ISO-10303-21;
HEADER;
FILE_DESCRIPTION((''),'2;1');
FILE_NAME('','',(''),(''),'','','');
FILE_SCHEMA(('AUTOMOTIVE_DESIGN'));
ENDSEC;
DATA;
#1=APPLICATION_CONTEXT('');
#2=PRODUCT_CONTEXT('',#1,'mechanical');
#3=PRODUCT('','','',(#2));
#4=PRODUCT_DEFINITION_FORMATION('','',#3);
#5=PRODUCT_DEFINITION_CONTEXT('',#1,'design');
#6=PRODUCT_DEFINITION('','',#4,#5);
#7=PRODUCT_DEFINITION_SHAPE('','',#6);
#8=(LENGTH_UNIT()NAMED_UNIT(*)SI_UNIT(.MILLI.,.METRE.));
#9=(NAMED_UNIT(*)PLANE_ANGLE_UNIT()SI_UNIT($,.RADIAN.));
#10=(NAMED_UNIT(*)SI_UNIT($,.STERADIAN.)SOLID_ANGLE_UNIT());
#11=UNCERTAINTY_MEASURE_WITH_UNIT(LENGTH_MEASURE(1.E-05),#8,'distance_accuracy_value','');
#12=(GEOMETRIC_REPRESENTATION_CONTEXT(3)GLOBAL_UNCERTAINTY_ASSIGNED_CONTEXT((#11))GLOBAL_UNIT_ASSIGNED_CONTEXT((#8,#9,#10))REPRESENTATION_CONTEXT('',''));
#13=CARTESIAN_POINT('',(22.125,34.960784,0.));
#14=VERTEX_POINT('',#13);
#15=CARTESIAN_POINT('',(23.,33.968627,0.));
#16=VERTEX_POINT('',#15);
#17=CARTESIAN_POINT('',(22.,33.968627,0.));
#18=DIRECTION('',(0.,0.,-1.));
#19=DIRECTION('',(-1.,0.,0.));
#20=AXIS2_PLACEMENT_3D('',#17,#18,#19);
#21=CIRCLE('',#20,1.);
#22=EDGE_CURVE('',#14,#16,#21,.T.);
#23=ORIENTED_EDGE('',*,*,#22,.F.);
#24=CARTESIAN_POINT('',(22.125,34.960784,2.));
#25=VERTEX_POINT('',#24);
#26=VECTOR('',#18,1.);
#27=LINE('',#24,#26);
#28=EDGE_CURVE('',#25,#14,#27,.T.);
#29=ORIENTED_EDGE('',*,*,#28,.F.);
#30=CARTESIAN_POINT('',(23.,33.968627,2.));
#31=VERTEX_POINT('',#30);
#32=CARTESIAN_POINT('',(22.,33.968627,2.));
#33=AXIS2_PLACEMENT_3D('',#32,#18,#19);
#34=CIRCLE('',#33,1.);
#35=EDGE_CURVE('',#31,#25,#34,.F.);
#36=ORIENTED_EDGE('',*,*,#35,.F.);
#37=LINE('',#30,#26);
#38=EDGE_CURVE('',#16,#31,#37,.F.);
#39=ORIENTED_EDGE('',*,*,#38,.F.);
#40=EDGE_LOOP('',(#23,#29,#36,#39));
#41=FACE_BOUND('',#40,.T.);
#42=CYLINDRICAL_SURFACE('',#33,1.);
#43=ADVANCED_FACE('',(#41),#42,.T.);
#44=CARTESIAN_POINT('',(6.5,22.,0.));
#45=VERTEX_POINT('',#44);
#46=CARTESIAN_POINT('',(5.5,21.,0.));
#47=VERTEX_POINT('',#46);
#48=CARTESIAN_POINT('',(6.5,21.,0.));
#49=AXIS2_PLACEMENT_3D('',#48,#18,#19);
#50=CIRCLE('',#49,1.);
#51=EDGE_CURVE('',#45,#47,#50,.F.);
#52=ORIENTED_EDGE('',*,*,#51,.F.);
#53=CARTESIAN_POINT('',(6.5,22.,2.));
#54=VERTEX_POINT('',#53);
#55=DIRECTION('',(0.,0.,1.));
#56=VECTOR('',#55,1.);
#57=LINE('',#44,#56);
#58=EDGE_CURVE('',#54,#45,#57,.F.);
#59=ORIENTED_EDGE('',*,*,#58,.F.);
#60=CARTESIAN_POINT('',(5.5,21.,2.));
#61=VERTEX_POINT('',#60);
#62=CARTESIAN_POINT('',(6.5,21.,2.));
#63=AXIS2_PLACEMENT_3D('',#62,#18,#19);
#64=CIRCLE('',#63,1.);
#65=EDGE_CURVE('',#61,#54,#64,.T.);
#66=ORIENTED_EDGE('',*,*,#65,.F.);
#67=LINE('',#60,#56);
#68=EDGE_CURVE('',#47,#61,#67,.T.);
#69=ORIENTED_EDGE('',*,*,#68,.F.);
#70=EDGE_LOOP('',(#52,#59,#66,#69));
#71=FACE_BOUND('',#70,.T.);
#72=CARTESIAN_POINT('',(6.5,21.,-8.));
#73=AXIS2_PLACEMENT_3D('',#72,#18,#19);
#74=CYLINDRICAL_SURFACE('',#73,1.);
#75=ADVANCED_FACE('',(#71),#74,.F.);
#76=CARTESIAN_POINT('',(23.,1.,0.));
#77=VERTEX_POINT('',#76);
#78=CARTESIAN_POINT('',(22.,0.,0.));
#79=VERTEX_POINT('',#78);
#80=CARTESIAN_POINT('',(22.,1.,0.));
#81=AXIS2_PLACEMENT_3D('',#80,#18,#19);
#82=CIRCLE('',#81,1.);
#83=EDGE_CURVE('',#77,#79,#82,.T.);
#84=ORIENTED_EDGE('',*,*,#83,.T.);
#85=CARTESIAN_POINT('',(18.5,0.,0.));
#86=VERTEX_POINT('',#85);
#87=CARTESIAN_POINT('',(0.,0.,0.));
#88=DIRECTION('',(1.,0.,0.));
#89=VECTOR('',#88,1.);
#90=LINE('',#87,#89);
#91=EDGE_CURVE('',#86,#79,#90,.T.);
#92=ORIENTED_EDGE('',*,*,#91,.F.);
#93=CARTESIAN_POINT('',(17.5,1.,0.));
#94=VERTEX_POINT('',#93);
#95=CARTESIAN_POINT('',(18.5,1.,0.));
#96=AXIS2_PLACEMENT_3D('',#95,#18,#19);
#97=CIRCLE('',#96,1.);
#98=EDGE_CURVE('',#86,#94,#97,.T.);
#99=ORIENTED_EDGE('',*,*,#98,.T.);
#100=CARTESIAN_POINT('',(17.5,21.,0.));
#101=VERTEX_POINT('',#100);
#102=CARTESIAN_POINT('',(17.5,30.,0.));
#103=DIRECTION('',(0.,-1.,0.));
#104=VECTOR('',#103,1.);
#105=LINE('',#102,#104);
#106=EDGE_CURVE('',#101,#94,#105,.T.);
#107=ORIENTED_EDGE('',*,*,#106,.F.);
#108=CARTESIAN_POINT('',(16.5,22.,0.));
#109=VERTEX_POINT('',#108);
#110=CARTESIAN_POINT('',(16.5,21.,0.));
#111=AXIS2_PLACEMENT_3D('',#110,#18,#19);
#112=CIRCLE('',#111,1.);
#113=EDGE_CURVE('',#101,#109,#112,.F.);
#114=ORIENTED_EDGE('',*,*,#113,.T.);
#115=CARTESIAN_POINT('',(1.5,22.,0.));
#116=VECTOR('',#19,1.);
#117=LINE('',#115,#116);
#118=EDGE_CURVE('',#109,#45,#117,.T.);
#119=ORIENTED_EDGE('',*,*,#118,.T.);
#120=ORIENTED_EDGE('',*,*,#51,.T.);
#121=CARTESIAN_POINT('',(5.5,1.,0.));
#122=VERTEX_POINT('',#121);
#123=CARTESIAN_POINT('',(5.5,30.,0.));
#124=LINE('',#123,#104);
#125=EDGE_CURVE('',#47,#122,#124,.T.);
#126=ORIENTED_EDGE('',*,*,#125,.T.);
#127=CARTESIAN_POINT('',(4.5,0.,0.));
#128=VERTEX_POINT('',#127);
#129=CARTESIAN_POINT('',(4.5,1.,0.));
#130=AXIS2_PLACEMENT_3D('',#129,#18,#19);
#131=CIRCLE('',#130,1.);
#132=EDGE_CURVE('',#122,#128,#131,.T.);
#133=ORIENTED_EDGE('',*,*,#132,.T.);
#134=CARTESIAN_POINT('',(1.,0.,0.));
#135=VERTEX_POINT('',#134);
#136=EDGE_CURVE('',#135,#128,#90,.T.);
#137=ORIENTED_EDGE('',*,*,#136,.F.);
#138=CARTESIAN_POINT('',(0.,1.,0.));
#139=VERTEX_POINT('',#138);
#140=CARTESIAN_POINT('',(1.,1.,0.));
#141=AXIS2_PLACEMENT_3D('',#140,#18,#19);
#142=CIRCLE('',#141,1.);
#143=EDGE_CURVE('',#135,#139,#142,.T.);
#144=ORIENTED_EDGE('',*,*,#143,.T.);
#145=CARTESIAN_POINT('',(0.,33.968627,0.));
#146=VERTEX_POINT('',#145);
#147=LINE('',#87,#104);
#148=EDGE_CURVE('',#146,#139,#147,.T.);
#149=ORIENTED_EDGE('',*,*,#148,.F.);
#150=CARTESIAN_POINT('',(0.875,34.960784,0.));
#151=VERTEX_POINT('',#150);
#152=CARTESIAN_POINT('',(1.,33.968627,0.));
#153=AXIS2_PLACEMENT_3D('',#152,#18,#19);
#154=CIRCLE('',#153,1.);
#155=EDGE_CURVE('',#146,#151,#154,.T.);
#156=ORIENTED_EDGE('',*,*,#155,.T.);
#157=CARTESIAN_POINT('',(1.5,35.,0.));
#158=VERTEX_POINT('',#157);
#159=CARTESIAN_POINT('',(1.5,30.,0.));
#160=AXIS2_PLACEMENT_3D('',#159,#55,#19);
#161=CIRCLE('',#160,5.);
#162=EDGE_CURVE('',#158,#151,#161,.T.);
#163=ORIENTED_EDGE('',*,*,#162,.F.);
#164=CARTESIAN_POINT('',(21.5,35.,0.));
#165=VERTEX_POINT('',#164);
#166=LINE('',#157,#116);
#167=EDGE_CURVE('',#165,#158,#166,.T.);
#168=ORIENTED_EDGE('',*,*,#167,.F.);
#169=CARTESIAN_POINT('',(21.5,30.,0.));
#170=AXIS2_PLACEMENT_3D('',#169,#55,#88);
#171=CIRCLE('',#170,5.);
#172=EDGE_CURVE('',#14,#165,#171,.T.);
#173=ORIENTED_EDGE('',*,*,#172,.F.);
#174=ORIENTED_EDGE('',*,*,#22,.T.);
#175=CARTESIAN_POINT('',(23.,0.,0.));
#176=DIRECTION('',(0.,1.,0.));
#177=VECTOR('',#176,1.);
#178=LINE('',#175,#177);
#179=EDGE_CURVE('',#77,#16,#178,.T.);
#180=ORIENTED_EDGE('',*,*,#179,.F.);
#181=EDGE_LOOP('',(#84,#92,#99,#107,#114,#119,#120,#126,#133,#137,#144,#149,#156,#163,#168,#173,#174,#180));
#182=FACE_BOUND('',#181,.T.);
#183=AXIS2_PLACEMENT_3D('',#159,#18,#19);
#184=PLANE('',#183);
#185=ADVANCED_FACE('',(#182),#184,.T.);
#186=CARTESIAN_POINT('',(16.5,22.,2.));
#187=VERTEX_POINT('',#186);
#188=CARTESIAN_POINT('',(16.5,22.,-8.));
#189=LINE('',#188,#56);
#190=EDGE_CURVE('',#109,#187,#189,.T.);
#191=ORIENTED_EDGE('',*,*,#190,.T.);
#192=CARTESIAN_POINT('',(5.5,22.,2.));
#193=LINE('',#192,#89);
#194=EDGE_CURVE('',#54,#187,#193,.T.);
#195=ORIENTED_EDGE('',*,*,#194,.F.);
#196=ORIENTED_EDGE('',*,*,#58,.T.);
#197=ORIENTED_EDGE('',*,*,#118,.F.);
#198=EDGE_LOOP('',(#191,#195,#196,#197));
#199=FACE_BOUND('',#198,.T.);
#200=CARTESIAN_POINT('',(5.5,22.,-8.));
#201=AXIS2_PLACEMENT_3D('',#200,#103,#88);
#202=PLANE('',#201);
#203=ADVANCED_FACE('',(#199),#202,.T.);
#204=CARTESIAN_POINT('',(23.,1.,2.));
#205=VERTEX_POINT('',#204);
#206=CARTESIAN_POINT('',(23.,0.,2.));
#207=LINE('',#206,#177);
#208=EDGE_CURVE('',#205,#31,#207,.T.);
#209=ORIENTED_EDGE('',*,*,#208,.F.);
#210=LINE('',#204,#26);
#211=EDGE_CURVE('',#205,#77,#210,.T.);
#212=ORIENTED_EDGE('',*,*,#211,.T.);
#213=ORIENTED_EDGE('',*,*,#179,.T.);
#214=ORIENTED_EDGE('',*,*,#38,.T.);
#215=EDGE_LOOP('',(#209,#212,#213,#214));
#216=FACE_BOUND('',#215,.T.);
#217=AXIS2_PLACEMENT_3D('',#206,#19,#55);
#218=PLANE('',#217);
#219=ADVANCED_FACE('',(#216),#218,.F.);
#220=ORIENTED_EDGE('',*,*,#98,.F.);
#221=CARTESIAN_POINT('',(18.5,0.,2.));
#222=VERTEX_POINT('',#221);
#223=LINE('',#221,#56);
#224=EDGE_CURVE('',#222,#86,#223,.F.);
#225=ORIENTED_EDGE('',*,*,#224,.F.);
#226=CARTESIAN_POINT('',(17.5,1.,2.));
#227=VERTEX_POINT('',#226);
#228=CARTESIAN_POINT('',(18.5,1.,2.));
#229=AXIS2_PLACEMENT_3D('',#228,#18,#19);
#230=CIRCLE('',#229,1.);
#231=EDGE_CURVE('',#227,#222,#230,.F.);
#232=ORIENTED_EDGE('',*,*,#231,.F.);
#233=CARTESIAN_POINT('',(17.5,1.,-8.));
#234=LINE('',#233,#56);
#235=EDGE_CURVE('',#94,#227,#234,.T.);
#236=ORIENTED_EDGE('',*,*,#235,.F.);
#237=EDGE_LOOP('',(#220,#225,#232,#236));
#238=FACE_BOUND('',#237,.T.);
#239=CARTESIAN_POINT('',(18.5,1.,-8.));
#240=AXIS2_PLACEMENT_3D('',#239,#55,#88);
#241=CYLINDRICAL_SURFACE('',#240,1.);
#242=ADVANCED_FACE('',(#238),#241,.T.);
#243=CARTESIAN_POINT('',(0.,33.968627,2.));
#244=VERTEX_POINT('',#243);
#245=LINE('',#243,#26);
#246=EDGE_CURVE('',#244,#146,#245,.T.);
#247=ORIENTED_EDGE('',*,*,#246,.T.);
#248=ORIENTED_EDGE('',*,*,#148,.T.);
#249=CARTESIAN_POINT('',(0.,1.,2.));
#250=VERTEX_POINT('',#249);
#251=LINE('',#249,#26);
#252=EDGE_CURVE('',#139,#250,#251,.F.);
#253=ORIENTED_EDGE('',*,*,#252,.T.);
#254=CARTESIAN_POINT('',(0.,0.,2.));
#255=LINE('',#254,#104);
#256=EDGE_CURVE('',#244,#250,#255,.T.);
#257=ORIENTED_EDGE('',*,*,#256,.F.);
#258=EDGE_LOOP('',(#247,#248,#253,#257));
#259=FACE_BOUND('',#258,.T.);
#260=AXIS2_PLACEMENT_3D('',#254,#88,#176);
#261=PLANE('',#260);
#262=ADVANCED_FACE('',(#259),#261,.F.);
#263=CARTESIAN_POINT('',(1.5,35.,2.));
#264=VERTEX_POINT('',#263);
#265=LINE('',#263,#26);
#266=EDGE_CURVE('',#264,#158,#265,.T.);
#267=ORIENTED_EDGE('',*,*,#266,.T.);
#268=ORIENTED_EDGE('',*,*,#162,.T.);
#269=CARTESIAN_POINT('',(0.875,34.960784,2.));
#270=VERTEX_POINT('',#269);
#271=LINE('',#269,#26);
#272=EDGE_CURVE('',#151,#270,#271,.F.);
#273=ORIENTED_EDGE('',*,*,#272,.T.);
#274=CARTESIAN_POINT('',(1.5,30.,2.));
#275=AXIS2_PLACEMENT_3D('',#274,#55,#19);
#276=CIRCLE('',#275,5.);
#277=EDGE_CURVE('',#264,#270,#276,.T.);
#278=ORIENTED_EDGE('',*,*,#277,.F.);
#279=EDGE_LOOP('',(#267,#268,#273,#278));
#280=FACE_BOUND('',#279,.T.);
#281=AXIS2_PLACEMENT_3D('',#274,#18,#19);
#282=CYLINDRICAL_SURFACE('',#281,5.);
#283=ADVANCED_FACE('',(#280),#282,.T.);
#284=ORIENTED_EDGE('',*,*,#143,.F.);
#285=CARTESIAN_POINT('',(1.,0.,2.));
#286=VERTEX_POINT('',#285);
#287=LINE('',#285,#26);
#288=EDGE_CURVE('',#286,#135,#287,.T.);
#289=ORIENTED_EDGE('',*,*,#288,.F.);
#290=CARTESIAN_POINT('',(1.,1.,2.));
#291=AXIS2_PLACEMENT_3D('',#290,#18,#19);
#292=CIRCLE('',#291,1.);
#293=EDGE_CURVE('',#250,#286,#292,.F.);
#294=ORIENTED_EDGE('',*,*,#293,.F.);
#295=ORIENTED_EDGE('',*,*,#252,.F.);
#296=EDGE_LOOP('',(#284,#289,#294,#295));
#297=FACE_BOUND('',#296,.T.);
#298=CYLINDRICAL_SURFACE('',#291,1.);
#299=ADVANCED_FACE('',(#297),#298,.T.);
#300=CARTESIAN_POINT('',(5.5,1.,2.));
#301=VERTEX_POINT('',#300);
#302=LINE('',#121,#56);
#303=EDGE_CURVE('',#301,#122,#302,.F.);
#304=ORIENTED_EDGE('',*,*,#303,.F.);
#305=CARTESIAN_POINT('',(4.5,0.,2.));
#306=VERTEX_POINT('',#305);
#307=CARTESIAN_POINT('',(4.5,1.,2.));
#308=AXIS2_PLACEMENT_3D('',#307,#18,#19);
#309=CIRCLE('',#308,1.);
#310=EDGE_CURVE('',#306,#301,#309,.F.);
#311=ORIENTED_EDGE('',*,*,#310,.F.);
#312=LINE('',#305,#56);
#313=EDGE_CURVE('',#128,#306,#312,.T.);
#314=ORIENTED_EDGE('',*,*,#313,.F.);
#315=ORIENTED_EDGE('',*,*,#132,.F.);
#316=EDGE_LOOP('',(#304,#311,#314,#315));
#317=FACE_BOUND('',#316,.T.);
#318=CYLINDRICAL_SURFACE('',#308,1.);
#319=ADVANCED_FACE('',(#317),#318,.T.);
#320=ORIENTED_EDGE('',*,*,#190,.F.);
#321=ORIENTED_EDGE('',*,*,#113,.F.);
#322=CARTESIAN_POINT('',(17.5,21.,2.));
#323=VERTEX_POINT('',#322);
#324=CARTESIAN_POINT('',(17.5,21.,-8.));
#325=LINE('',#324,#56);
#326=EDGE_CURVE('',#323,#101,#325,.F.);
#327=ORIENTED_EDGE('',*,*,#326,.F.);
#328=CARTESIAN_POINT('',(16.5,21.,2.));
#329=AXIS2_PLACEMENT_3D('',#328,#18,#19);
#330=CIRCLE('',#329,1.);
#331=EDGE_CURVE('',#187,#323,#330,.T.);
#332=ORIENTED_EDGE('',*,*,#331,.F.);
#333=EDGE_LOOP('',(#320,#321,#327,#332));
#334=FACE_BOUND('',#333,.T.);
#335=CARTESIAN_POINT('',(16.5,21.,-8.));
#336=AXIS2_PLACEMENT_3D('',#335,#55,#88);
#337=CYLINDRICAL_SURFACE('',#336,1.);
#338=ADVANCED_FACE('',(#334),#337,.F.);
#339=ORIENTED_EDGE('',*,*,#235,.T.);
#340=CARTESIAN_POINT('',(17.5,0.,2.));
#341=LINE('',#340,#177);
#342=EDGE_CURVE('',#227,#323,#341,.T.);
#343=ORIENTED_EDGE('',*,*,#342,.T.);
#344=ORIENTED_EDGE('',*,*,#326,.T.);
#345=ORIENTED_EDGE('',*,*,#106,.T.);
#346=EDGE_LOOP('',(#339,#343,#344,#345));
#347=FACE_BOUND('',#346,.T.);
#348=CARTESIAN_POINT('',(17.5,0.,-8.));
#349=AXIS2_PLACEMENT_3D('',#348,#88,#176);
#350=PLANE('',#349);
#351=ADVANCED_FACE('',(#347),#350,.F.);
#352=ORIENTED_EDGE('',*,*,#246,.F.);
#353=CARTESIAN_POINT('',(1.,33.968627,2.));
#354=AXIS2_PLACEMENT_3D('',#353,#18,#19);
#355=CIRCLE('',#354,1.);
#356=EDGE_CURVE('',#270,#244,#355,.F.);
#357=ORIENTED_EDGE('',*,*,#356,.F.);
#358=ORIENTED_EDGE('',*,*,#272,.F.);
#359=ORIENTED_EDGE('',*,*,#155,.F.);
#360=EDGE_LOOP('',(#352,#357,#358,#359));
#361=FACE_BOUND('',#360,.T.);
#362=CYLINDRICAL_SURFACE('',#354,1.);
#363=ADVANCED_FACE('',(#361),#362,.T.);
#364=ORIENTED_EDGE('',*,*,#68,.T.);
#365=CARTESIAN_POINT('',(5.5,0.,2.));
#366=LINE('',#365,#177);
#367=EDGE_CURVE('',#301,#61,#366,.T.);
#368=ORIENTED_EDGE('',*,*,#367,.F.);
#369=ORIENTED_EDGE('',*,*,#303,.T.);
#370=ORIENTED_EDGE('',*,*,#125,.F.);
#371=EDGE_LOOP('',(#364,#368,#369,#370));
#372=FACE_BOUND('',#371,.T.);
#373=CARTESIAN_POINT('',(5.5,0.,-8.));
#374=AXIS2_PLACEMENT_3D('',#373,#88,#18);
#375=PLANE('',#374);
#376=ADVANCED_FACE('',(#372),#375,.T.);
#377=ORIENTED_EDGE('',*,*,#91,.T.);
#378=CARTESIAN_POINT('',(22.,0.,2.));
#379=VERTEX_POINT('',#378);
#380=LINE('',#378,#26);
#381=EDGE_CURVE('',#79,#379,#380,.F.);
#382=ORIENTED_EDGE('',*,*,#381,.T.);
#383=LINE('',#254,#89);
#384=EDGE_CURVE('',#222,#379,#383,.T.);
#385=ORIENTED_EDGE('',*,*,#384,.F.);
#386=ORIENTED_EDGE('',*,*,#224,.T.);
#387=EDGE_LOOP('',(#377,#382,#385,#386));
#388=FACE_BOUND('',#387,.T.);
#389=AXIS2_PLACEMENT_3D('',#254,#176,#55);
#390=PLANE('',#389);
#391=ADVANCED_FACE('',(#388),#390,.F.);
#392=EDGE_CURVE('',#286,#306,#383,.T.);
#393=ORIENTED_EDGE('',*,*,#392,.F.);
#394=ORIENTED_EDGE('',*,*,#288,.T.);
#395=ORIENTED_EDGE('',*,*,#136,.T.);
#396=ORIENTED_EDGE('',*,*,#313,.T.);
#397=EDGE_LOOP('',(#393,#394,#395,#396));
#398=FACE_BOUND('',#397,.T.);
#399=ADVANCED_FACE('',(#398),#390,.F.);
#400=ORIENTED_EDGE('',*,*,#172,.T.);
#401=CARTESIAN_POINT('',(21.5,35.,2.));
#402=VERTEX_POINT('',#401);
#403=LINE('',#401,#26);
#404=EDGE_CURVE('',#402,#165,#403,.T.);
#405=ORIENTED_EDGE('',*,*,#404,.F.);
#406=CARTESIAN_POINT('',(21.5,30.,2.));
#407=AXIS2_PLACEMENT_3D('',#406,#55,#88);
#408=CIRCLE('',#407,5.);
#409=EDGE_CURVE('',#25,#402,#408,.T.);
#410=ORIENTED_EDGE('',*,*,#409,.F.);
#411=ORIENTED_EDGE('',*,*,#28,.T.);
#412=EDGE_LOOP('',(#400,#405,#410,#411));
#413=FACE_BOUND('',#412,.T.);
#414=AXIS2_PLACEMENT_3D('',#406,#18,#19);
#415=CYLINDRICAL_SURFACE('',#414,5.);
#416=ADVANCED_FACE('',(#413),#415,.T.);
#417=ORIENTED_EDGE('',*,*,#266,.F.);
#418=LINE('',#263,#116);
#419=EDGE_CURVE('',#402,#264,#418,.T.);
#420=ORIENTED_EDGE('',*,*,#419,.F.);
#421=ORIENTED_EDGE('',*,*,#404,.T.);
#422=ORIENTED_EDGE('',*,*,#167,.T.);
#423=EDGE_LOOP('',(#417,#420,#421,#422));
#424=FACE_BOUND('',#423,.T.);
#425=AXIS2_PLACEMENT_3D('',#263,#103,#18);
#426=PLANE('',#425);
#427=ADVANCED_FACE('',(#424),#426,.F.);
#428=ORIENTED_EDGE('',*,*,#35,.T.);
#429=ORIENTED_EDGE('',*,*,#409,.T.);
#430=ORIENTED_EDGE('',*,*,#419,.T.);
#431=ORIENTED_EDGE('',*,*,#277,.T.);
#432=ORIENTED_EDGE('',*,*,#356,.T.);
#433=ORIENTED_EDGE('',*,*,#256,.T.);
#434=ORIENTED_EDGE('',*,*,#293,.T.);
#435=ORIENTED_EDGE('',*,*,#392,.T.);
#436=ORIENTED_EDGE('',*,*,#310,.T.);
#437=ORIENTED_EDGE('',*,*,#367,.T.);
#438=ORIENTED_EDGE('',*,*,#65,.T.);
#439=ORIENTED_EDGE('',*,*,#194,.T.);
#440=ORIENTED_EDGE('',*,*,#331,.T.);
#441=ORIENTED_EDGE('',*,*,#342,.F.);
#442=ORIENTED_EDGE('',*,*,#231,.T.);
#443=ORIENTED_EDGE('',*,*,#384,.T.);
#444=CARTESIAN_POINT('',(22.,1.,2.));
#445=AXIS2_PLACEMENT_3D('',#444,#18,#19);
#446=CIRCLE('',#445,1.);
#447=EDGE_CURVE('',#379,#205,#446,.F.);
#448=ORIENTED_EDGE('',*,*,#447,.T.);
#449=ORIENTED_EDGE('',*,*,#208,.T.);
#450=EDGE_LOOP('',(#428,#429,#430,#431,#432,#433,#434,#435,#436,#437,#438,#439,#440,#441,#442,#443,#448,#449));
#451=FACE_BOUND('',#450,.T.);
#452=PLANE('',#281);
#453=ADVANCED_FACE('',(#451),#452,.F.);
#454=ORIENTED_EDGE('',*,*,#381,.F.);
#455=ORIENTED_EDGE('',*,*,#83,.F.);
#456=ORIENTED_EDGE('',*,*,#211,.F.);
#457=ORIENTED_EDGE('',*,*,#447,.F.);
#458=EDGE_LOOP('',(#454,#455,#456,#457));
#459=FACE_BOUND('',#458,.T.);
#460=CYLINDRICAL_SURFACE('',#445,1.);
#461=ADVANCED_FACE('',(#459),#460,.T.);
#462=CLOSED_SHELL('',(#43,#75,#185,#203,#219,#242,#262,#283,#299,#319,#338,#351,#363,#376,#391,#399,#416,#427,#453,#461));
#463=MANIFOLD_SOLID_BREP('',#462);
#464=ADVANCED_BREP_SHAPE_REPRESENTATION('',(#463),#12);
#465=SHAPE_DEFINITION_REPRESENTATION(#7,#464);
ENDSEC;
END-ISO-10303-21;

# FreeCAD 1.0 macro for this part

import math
import FreeCAD as App
import Part
import Sketcher

V = App.Vector
Q = App.Units.Quantity


def edges_at(feature, points):
    """Names of the edges that pass closest to the given points."""
    edges = feature.Shape.Edges
    near = lambda p: min(range(len(edges)), key=lambda i: edges[i].distToShape(Part.Vertex(*p))[0])
    return sorted({f"Edge{near(p) + 1}" for p in points})

doc = App.newDocument("Part")
body = doc.addObject("PartDesign::Body", "Body")

# Sketch on XY plane
sketch1 = body.newObject("Sketcher::SketchObject", "Sketch")
sketch1.AttachmentSupport = (doc.getObject("XY_Plane"), [""])
sketch1.MapMode = "FlatFace"
sketch1.addGeometry(Part.LineSegment(V(0, 0, 0), V(23, 0, 0)), False)
sketch1.addGeometry(Part.LineSegment(V(23, 0, 0), V(23, 34.8, 0)), False)
sketch1.addGeometry(Part.ArcOfCircle(Part.Circle(V(21.5, 30, 0), V(0, 0, 1), 5), math.radians(72.54), math.radians(90)), False)
sketch1.addGeometry(Part.LineSegment(V(21.5, 35, 0), V(1.5, 35, 0)), False)
sketch1.addGeometry(Part.ArcOfCircle(Part.Circle(V(1.5, 30, 0), V(0, 0, 1), 5), math.radians(90), math.radians(107.46)), False)
sketch1.addGeometry(Part.LineSegment(V(0, 34.8, 0), V(0, 0, 0)), False)
sketch1.addConstraint(Sketcher.Constraint("Coincident", 0, 2, 1, 1))
sketch1.addConstraint(Sketcher.Constraint("Coincident", 1, 2, 2, 1))
sketch1.addConstraint(Sketcher.Constraint("Tangent", 2, 2, 3, 1))
sketch1.addConstraint(Sketcher.Constraint("Tangent", 3, 2, 4, 1))
sketch1.addConstraint(Sketcher.Constraint("Coincident", 4, 2, 5, 1))
sketch1.addConstraint(Sketcher.Constraint("Coincident", 5, 2, 0, 1))
sketch1.addConstraint(Sketcher.Constraint("Horizontal", 0))
sketch1.addConstraint(Sketcher.Constraint("Vertical", 1))
sketch1.addConstraint(Sketcher.Constraint("Horizontal", 3))
sketch1.addConstraint(Sketcher.Constraint("Vertical", 5))
sketch1.addConstraint(Sketcher.Constraint("Coincident", 5, 2, -1, 1))
sketch1.addConstraint(Sketcher.Constraint("Equal", 2, 4))
sketch1.addConstraint(Sketcher.Constraint("Horizontal", 1, 2, 4, 2))
sketch1.addConstraint(Sketcher.Constraint("Radius", 2, Q("5 mm")))
sketch1.addConstraint(Sketcher.Constraint("DistanceX", 0, 1, 0, 2, Q("23 mm")))
sketch1.addConstraint(Sketcher.Constraint("DistanceX", 3, 2, 3, 1, Q("20 mm")))
sketch1.addConstraint(Sketcher.Constraint("DistanceY", -1, 1, 2, 3, Q("30 mm")))
pad1 = body.newObject("PartDesign::Pad", "Pad")
pad1.Profile = sketch1
pad1.Length = 2
doc.recompute()

fillet = body.newObject("PartDesign::Fillet", "Fillet")
fillet.Base = (pad1, edges_at(pad1, [
    (0, 34.77, 1),
    (23, 34.77, 1),
    (23, 0, 1),
    (0, 0, 1),
]))
fillet.Radius = 1

# Sketch on XY plane
sketch2 = body.newObject("Sketcher::SketchObject", "Sketch001")
sketch2.AttachmentSupport = (doc.getObject("XY_Plane"), [""])
sketch2.MapMode = "FlatFace"
sketch2.AttachmentOffset = App.Placement(V(0, 0, 2), App.Rotation())
sketch2.addGeometry(Part.LineSegment(V(6, 22, 0), V(6, 0, 0)), False)
sketch2.addGeometry(Part.LineSegment(V(6, 0, 0), V(18, 0, 0)), False)
sketch2.addGeometry(Part.LineSegment(V(18, 0, 0), V(18, 22, 0)), False)
sketch2.addGeometry(Part.LineSegment(V(18, 22, 0), V(6, 22, 0)), False)
sketch2.addConstraint(Sketcher.Constraint("Coincident", 0, 2, 1, 1))
sketch2.addConstraint(Sketcher.Constraint("Coincident", 1, 2, 2, 1))
sketch2.addConstraint(Sketcher.Constraint("Coincident", 2, 2, 3, 1))
sketch2.addConstraint(Sketcher.Constraint("Coincident", 3, 2, 0, 1))
sketch2.addConstraint(Sketcher.Constraint("Vertical", 0))
sketch2.addConstraint(Sketcher.Constraint("Horizontal", 1))
sketch2.addConstraint(Sketcher.Constraint("Vertical", 2))
sketch2.addConstraint(Sketcher.Constraint("Horizontal", 3))
sketch2.addConstraint(Sketcher.Constraint("PointOnObject", 0, 2, -1))
sketch2.addConstraint(Sketcher.Constraint("DistanceX", 1, 1, 1, 2, Q("12 mm")))
sketch2.addConstraint(Sketcher.Constraint("DistanceY", 0, 2, 0, 1, Q("22 mm")))
sketch2.addConstraint(Sketcher.Constraint("DistanceX", -1, 1, 0, 2, Q("5.5 mm")))
pocket1 = body.newObject("PartDesign::Pocket", "Pocket")
pocket1.Profile = sketch2
pocket1.Length = 10
doc.recompute()

fillet2 = body.newObject("PartDesign::Fillet", "Fillet001")
fillet2.Base = (pocket1, edges_at(pocket1, [
    (5.5, 0, 1),
    (5.5, 22, 1),
    (17.5, 22, 1),
    (17.5, 0, 1),
]))
fillet2.Radius = 1

doc.recompute()
